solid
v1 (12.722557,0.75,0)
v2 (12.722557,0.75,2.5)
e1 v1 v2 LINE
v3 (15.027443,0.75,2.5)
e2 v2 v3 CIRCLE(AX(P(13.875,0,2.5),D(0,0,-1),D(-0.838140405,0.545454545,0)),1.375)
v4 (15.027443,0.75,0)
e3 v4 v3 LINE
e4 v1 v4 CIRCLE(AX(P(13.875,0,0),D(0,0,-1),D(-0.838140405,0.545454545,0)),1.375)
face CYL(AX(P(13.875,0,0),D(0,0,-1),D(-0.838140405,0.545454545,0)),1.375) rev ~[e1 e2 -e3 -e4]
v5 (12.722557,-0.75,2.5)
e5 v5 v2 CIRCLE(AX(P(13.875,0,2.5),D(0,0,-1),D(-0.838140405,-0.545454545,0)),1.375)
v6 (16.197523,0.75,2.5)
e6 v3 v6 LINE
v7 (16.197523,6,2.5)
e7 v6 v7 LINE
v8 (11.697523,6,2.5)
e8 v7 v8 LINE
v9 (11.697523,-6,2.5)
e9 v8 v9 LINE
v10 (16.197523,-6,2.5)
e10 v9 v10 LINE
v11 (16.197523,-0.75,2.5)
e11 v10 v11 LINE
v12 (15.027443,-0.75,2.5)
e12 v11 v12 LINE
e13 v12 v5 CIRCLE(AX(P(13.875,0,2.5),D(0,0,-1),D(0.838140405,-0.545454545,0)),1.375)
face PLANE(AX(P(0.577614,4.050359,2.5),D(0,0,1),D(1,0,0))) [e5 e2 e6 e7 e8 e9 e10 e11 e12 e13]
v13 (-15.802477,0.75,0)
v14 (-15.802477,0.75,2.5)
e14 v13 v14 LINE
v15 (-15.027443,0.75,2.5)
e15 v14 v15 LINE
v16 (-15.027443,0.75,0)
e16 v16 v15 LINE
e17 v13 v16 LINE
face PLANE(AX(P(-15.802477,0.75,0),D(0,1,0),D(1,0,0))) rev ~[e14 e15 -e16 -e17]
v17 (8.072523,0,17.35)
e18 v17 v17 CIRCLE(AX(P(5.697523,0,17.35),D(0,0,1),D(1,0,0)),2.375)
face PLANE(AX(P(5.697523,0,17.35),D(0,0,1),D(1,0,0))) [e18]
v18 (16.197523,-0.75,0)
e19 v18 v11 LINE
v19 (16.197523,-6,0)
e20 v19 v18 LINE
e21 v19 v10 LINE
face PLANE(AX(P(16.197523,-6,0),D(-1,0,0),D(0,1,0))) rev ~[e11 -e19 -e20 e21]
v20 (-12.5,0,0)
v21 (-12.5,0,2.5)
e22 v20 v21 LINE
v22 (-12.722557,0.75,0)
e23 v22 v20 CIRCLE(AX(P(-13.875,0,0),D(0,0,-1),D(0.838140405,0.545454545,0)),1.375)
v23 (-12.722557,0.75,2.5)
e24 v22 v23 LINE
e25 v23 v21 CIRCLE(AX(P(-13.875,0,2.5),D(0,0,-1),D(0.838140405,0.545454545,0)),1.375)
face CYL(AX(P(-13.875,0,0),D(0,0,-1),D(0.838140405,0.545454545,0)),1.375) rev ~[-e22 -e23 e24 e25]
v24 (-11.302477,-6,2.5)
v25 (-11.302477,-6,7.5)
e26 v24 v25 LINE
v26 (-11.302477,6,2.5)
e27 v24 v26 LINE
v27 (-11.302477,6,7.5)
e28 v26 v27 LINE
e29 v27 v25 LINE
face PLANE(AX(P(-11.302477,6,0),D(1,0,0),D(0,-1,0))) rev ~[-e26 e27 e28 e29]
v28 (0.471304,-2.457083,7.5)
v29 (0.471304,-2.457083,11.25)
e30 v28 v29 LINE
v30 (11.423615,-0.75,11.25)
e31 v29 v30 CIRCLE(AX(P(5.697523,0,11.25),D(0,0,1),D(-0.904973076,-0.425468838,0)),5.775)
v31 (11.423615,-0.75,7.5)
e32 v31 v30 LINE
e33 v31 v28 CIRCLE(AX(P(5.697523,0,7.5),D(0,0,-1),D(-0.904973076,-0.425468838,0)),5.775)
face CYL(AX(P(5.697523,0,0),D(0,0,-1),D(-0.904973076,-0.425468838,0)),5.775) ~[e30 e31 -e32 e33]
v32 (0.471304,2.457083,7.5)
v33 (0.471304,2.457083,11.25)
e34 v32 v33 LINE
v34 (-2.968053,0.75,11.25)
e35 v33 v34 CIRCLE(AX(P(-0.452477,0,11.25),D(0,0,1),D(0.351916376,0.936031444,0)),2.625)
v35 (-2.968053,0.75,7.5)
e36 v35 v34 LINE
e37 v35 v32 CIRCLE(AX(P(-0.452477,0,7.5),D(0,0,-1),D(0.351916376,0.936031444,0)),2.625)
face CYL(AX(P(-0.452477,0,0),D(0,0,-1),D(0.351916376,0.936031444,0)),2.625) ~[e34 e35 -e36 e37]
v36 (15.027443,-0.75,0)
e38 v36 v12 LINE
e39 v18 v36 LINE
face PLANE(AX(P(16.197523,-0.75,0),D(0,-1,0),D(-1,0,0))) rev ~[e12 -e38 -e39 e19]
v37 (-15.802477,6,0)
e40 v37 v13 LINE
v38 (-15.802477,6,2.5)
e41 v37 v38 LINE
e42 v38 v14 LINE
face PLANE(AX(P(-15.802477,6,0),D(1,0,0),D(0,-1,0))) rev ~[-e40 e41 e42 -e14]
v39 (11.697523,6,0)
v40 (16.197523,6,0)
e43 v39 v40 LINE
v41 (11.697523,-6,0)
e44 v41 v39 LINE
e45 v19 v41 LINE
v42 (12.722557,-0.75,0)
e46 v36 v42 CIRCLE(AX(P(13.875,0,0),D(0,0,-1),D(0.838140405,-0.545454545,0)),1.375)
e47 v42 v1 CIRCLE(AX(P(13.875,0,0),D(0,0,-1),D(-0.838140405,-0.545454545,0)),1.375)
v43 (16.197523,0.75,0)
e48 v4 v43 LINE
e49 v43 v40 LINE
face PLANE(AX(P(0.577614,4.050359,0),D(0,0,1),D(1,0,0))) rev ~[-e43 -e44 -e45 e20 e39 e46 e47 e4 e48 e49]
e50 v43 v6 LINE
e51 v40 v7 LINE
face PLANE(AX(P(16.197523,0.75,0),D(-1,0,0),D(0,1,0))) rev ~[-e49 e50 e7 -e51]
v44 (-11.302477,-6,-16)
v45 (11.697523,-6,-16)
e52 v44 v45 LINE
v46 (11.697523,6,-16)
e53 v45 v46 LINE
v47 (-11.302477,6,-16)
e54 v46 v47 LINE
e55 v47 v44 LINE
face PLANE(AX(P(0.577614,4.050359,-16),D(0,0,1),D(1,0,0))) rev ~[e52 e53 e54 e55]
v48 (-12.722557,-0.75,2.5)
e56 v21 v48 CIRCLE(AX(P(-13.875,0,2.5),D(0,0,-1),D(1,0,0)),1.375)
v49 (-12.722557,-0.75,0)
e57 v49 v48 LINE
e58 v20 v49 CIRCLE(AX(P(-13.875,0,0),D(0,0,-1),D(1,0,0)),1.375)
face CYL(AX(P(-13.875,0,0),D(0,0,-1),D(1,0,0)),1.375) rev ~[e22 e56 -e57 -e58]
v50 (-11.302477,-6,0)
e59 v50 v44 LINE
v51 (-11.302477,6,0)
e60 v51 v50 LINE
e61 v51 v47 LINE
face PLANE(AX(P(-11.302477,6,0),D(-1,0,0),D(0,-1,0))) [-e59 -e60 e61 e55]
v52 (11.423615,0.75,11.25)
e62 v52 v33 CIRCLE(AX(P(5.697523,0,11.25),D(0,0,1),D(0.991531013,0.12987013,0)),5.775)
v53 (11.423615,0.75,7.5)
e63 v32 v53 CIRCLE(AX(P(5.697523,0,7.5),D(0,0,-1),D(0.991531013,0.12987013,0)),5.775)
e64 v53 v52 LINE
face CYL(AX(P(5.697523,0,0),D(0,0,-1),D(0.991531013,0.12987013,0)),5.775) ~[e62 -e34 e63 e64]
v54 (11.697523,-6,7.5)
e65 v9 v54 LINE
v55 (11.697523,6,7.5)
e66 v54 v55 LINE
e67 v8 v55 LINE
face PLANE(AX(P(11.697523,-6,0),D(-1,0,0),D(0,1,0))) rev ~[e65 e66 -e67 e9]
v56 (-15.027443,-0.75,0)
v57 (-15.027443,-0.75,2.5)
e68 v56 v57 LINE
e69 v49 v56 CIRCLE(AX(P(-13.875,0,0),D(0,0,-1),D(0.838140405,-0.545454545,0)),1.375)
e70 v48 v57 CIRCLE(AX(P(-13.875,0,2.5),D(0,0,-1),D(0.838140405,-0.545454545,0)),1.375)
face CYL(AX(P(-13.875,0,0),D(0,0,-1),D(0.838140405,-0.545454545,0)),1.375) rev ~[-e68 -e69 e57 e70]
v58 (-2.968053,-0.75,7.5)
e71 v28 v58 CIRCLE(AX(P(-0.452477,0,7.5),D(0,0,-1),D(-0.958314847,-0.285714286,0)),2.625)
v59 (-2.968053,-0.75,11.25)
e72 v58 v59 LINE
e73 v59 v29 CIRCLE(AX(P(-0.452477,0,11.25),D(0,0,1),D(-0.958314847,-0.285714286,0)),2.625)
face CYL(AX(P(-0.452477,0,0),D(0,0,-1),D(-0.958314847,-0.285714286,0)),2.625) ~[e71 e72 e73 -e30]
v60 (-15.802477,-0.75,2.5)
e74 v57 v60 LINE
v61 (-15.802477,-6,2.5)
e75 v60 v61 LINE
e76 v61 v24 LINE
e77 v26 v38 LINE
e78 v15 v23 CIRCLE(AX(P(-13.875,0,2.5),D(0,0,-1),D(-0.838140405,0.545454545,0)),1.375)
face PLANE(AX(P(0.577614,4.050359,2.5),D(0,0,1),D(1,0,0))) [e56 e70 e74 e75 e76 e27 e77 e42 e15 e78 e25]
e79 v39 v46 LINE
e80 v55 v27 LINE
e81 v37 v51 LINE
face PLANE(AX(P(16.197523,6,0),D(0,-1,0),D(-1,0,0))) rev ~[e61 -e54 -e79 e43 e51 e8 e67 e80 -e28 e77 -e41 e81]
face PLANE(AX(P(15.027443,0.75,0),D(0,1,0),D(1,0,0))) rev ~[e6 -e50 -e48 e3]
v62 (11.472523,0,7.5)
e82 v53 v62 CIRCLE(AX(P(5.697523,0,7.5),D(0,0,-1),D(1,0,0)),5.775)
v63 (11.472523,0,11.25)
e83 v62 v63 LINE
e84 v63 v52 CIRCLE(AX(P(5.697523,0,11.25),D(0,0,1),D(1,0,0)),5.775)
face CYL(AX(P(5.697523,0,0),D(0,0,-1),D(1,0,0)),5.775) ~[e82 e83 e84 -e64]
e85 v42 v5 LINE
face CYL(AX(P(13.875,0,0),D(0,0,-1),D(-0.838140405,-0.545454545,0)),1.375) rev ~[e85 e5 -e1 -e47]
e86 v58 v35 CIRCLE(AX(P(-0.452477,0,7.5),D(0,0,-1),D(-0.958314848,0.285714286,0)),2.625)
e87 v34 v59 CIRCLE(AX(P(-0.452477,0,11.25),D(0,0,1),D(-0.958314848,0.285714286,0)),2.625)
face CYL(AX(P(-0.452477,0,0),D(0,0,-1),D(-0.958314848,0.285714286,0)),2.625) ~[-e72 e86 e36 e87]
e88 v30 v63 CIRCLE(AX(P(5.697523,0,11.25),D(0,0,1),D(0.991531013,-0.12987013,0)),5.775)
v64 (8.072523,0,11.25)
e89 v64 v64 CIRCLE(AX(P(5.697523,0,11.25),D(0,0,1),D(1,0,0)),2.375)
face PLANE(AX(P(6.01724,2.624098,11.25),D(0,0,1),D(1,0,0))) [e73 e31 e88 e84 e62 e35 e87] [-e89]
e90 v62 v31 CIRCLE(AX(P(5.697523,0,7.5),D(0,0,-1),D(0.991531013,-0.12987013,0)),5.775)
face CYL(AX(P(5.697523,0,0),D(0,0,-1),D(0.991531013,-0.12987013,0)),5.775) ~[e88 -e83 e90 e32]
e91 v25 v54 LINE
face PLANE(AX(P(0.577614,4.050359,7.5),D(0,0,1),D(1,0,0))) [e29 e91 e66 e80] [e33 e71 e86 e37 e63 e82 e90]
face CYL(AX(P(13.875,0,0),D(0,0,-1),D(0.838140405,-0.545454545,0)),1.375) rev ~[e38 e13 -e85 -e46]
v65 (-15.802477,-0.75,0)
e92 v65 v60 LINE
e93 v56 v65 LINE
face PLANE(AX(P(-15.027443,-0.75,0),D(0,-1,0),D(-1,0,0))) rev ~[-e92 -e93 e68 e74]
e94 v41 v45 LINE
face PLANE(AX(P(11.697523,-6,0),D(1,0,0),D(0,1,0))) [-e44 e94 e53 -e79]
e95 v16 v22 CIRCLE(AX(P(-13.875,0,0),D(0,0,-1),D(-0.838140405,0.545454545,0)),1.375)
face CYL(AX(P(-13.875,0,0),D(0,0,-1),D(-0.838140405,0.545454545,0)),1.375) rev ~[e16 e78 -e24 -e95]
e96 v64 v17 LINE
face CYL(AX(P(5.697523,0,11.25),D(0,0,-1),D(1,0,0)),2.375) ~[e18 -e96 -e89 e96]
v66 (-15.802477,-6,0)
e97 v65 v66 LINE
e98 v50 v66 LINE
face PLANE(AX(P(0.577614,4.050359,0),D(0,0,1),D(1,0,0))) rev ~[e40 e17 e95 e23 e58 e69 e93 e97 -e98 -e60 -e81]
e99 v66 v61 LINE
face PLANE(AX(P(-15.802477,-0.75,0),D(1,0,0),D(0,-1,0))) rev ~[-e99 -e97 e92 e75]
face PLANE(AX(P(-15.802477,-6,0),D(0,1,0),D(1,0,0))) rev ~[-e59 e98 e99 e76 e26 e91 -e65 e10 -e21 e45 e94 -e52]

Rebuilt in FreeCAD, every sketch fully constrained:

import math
import FreeCAD as App
import Part
import Sketcher
from FreeCAD import Vector

doc = App.newDocument("Part")
params = doc.addObject("Spreadsheet::Sheet", "Params")
for row, (alias, value) in enumerate([
    ("sketch1_width", "32 mm"),
    ("sketch1_height", "5.25 mm"),
    ("pad1_length", "2.5 mm"),
    ("pad2_length", "11.25 mm"),
    ("sketch3_width", "23 mm"),
    ("sketch3_height", "12 mm"),
    ("pad3_length", "7.5 mm"),
    ("pad3_length2", "16 mm"),
    ("sketch4_diameter", "4.75 mm"),
    ("pad4_length", "6.1 mm"),
], start=1):
    params.set(f"A{row}", alias)
    params.set(f"B{row}", "=" + value)
    params.setAlias(f"B{row}", alias)

body = doc.addObject("PartDesign::Body", "Body")

# Sketch on XY plane
sketch1 = doc.addObject("Sketcher::SketchObject", "Sketch")
body.addObject(sketch1)
sketch1.AttachmentSupport = (doc.XY_Plane, [""])
sketch1.MapMode = "FlatFace"
sketch1.addGeometry([
    Part.LineSegment(Vector(-15.802477, 6, 0), Vector(-15.802477, 0.75, 0)),  # 0
    Part.LineSegment(Vector(-15.802477, 0.75, 0), Vector(-15.027443, 0.75, 0)),  # 1
    Part.ArcOfCircle(Part.Circle(Vector(-13.875, 0, 0), Vector(0, 0, 1), 1.375), math.radians(33.055731), math.radians(146.944269)),  # 2
    Part.ArcOfCircle(Part.Circle(Vector(-13.875, 0, 0), Vector(0, 0, 1), 1.375), math.radians(0), math.radians(33.055731)),  # 3
    Part.ArcOfCircle(Part.Circle(Vector(-13.875, 0, 0), Vector(0, 0, 1), 1.375), math.radians(-33.055731), math.radians(0)),  # 4
    Part.ArcOfCircle(Part.Circle(Vector(-13.875, 0, 0), Vector(0, 0, 1), 1.375), math.radians(-146.944269), math.radians(-33.055731)),  # 5
    Part.LineSegment(Vector(-15.027443, -0.75, 0), Vector(-15.802477, -0.75, 0)),  # 6
    Part.LineSegment(Vector(-15.802477, -0.75, 0), Vector(-15.802477, -6, 0)),  # 7
    Part.LineSegment(Vector(-15.802477, -6, 0), Vector(16.197523, -6, 0)),  # 8
    Part.LineSegment(Vector(16.197523, -6, 0), Vector(16.197523, -0.75, 0)),  # 9
    Part.LineSegment(Vector(16.197523, -0.75, 0), Vector(15.027443, -0.75, 0)),  # 10
    Part.ArcOfCircle(Part.Circle(Vector(13.875, 0, 0), Vector(0, 0, 1), 1.375), math.radians(-146.944269), math.radians(-33.055731)),  # 11
    Part.ArcOfCircle(Part.Circle(Vector(13.875, 0, 0), Vector(0, 0, 1), 1.375), math.radians(146.944269), math.radians(213.055731)),  # 12
    Part.ArcOfCircle(Part.Circle(Vector(13.875, 0, 0), Vector(0, 0, 1), 1.375), math.radians(33.055731), math.radians(146.944269)),  # 13
    Part.LineSegment(Vector(15.027443, 0.75, 0), Vector(16.197523, 0.75, 0)),  # 14
    Part.LineSegment(Vector(16.197523, 0.75, 0), Vector(16.197523, 6, 0)),  # 15
    Part.LineSegment(Vector(16.197523, 6, 0), Vector(-15.802477, 6, 0)),  # 16
], False)
sketch1.addConstraint([
    Sketcher.Constraint("Coincident", 0, 2, 1, 1),
    Sketcher.Constraint("Coincident", 1, 2, 2, 2),
    Sketcher.Constraint("Tangent", 2, 1, 3, 2),
    Sketcher.Constraint("Tangent", 3, 1, 4, 2),
    Sketcher.Constraint("Tangent", 4, 1, 5, 2),
    Sketcher.Constraint("Coincident", 5, 1, 6, 1),
    Sketcher.Constraint("Coincident", 6, 2, 7, 1),
    Sketcher.Constraint("Coincident", 7, 2, 8, 1),
    Sketcher.Constraint("Coincident", 8, 2, 9, 1),
    Sketcher.Constraint("Coincident", 9, 2, 10, 1),
    Sketcher.Constraint("Coincident", 10, 2, 11, 2),
    Sketcher.Constraint("Tangent", 11, 1, 12, 2),
    Sketcher.Constraint("Tangent", 12, 1, 13, 2),
    Sketcher.Constraint("Coincident", 13, 1, 14, 1),
    Sketcher.Constraint("Coincident", 14, 2, 15, 1),
    Sketcher.Constraint("Coincident", 15, 2, 16, 1),
    Sketcher.Constraint("Coincident", 16, 2, 0, 1),
    Sketcher.Constraint("Vertical", 0),
    Sketcher.Constraint("Horizontal", 1),
    Sketcher.Constraint("Horizontal", 6),
    Sketcher.Constraint("Vertical", 7),
    Sketcher.Constraint("Horizontal", 8),
    Sketcher.Constraint("Vertical", 9),
    Sketcher.Constraint("Horizontal", 10),
    Sketcher.Constraint("Horizontal", 14),
    Sketcher.Constraint("Vertical", 15),
    Sketcher.Constraint("Horizontal", 16),
    Sketcher.Constraint("Coincident", 4, 3, 2, 3),
    Sketcher.Constraint("Coincident", 13, 3, 11, 3),
    Sketcher.Constraint("Equal", 4, 5),
    Sketcher.Constraint("Equal", 5, 11),
    Sketcher.Constraint("Symmetric", 2, 3, 11, 3, -1, 1),
    Sketcher.Constraint("Symmetric", 5, 1, 10, 2, -2),
    Sketcher.Constraint("Symmetric", 0, 2, 6, 2, -1),
    Sketcher.Constraint("Symmetric", 9, 2, 14, 2, -1),
    Sketcher.Constraint("PointOnObject", 3, 1, -1),
    Sketcher.Constraint("Horizontal", 1, 2, 2, 1),
    Sketcher.Constraint("Horizontal", 4, 1, 5, 1),
    Sketcher.Constraint("Horizontal", 10, 2, 11, 1),
    Sketcher.Constraint("Horizontal", 2, 1, 12, 1),
    Sketcher.Constraint("Equal", 0, 7),
    Sketcher.Constraint("DistanceX", 8, 1, 8, 2, 32.0),
    Sketcher.Constraint("DistanceY", 7, 2, -1, 1, 6.0),
    Sketcher.Constraint("Radius", 2, 1.375),
    Sketcher.Constraint("DistanceY", 0, 2, 0, 1, 5.25),
    Sketcher.Constraint("DistanceX", 3, 1, -1, 1, 12.5),
    Sketcher.Constraint("DistanceX", 10, 2, 10, 1, 1.17008),
])
sketch1.setExpression("Constraints[41]", "Params.sketch1_width")
sketch1.setExpression("Constraints[44]", "Params.sketch1_height")
pad1 = doc.addObject("PartDesign::Pad", "Pad")
body.addObject(pad1)
pad1.Profile = sketch1
pad1.setExpression("Length", "Params.pad1_length")

# Sketch on XY plane
sketch2 = doc.addObject("Sketcher::SketchObject", "Sketch001")
body.addObject(sketch2)
sketch2.AttachmentSupport = (doc.XY_Plane, [""])
sketch2.MapMode = "FlatFace"
sketch2.addGeometry([
    Part.ArcOfCircle(Part.Circle(Vector(-0.452477, 0, 0), Vector(0, 0, 1), 2.625), math.radians(-163.39845), math.radians(-69.395426)),  # 0
    Part.ArcOfCircle(Part.Circle(Vector(5.697523, 0, 0), Vector(0, 0, 1), 5.775), math.radians(-154.819657), math.radians(-7.462088)),  # 1
    Part.ArcOfCircle(Part.Circle(Vector(5.697523, 0, 0), Vector(0, 0, 1), 5.775), math.radians(-7.462088), math.radians(0)),  # 2
    Part.ArcOfCircle(Part.Circle(Vector(5.697523, 0, 0), Vector(0, 0, 1), 5.775), math.radians(0), math.radians(7.462088)),  # 3
    Part.ArcOfCircle(Part.Circle(Vector(5.697523, 0, 0), Vector(0, 0, 1), 5.775), math.radians(7.462088), math.radians(154.819657)),  # 4
    Part.ArcOfCircle(Part.Circle(Vector(-0.452477, 0, 0), Vector(0, 0, 1), 2.625), math.radians(69.395426), math.radians(163.39845)),  # 5
    Part.ArcOfCircle(Part.Circle(Vector(-0.452477, 0, 0), Vector(0, 0, 1), 2.625), math.radians(163.39845), math.radians(196.60155)),  # 6
], False)
sketch2.addConstraint([
    Sketcher.Constraint("Coincident", 0, 2, 1, 1),
    Sketcher.Constraint("Tangent", 1, 2, 2, 1),
    Sketcher.Constraint("Tangent", 2, 2, 3, 1),
    Sketcher.Constraint("Tangent", 3, 2, 4, 1),
    Sketcher.Constraint("Coincident", 4, 2, 5, 1),
    Sketcher.Constraint("Tangent", 5, 2, 6, 1),
    Sketcher.Constraint("Tangent", 6, 2, 0, 1),
    Sketcher.Constraint("Coincident", 3, 3, 1, 3),
    Sketcher.Constraint("Coincident", 5, 3, 0, 3),
    Sketcher.Constraint("Equal", 3, 4),
    Sketcher.Constraint("Symmetric", 1, 2, 3, 2, -1),
    Sketcher.Constraint("Symmetric", 5, 2, 6, 2, -1),
    Sketcher.Constraint("PointOnObject", 2, 2, -1),
    Sketcher.Constraint("Horizontal", 3, 2, 5, 2),
    Sketcher.Constraint("Radius", 0, 2.625),
    Sketcher.Constraint("Radius", 1, 5.775),
    Sketcher.Constraint("DistanceY", 1, 2, 3, 2, 1.5),
    Sketcher.Constraint("DistanceX", 0, 3, 1, 3, 6.15),
    Sketcher.Constraint("DistanceX", 0, 3, -1, 1, 0.452477),
])
pad2 = doc.addObject("PartDesign::Pad", "Pad001")
body.addObject(pad2)
pad2.Profile = sketch2
pad2.setExpression("Length", "Params.pad2_length")

# Sketch on XY plane
sketch3 = doc.addObject("Sketcher::SketchObject", "Sketch002")
body.addObject(sketch3)
sketch3.AttachmentSupport = (doc.XY_Plane, [""])
sketch3.MapMode = "FlatFace"
sketch3.addGeometry([
    Part.LineSegment(Vector(11.697523, 6, 0), Vector(-11.302477, 6, 0)),
    Part.LineSegment(Vector(-11.302477, 6, 0), Vector(-11.302477, -6, 0)),
    Part.LineSegment(Vector(-11.302477, -6, 0), Vector(11.697523, -6, 0)),
    Part.LineSegment(Vector(11.697523, -6, 0), Vector(11.697523, 6, 0)),
], False)
sketch3.addConstraint([
    Sketcher.Constraint("Coincident", 0, 2, 1, 1),
    Sketcher.Constraint("Coincident", 1, 2, 2, 1),
    Sketcher.Constraint("Coincident", 2, 2, 3, 1),
    Sketcher.Constraint("Coincident", 3, 2, 0, 1),
    Sketcher.Constraint("Horizontal", 0),
    Sketcher.Constraint("Vertical", 1),
    Sketcher.Constraint("Horizontal", 2),
    Sketcher.Constraint("Vertical", 3),
    Sketcher.Constraint("DistanceX", 0, 2, 0, 1, 23.0),
    Sketcher.Constraint("DistanceY", 1, 2, 1, 1, 12.0),
    Sketcher.Constraint("DistanceY", -1, 1, 0, 2, 6.0),
    Sketcher.Constraint("DistanceX", 0, 2, -1, 1, 11.302477),
])
sketch3.setExpression("Constraints[8]", "Params.sketch3_width")
sketch3.setExpression("Constraints[9]", "Params.sketch3_height")
pad3 = doc.addObject("PartDesign::Pad", "Pad002")
body.addObject(pad3)
pad3.Profile = sketch3
pad3.Type = "TwoLengths"
pad3.setExpression("Length", "Params.pad3_length")
pad3.setExpression("Length2", "Params.pad3_length2")

# Sketch on XY plane
sketch4 = doc.addObject("Sketcher::SketchObject", "Sketch003")
body.addObject(sketch4)
sketch4.AttachmentSupport = (doc.XY_Plane, [""])
sketch4.MapMode = "FlatFace"
sketch4.AttachmentOffset = App.Placement(Vector(0, 0, 11.25), App.Rotation())
sketch4.addGeometry(Part.Circle(Vector(5.697523, 0, 0), Vector(0, 0, 1), 2.375), False)
sketch4.addConstraint([
    Sketcher.Constraint("PointOnObject", 0, 3, -1),
    Sketcher.Constraint("Diameter", 0, 4.75),
    Sketcher.Constraint("DistanceX", -1, 1, 0, 3, 5.697523),
])
sketch4.setExpression("Constraints[1]", "Params.sketch4_diameter")
pad4 = doc.addObject("PartDesign::Pad", "Pad003")
body.addObject(pad4)
pad4.Profile = sketch4
pad4.setExpression("Length", "Params.pad4_length")

doc.recompute()
